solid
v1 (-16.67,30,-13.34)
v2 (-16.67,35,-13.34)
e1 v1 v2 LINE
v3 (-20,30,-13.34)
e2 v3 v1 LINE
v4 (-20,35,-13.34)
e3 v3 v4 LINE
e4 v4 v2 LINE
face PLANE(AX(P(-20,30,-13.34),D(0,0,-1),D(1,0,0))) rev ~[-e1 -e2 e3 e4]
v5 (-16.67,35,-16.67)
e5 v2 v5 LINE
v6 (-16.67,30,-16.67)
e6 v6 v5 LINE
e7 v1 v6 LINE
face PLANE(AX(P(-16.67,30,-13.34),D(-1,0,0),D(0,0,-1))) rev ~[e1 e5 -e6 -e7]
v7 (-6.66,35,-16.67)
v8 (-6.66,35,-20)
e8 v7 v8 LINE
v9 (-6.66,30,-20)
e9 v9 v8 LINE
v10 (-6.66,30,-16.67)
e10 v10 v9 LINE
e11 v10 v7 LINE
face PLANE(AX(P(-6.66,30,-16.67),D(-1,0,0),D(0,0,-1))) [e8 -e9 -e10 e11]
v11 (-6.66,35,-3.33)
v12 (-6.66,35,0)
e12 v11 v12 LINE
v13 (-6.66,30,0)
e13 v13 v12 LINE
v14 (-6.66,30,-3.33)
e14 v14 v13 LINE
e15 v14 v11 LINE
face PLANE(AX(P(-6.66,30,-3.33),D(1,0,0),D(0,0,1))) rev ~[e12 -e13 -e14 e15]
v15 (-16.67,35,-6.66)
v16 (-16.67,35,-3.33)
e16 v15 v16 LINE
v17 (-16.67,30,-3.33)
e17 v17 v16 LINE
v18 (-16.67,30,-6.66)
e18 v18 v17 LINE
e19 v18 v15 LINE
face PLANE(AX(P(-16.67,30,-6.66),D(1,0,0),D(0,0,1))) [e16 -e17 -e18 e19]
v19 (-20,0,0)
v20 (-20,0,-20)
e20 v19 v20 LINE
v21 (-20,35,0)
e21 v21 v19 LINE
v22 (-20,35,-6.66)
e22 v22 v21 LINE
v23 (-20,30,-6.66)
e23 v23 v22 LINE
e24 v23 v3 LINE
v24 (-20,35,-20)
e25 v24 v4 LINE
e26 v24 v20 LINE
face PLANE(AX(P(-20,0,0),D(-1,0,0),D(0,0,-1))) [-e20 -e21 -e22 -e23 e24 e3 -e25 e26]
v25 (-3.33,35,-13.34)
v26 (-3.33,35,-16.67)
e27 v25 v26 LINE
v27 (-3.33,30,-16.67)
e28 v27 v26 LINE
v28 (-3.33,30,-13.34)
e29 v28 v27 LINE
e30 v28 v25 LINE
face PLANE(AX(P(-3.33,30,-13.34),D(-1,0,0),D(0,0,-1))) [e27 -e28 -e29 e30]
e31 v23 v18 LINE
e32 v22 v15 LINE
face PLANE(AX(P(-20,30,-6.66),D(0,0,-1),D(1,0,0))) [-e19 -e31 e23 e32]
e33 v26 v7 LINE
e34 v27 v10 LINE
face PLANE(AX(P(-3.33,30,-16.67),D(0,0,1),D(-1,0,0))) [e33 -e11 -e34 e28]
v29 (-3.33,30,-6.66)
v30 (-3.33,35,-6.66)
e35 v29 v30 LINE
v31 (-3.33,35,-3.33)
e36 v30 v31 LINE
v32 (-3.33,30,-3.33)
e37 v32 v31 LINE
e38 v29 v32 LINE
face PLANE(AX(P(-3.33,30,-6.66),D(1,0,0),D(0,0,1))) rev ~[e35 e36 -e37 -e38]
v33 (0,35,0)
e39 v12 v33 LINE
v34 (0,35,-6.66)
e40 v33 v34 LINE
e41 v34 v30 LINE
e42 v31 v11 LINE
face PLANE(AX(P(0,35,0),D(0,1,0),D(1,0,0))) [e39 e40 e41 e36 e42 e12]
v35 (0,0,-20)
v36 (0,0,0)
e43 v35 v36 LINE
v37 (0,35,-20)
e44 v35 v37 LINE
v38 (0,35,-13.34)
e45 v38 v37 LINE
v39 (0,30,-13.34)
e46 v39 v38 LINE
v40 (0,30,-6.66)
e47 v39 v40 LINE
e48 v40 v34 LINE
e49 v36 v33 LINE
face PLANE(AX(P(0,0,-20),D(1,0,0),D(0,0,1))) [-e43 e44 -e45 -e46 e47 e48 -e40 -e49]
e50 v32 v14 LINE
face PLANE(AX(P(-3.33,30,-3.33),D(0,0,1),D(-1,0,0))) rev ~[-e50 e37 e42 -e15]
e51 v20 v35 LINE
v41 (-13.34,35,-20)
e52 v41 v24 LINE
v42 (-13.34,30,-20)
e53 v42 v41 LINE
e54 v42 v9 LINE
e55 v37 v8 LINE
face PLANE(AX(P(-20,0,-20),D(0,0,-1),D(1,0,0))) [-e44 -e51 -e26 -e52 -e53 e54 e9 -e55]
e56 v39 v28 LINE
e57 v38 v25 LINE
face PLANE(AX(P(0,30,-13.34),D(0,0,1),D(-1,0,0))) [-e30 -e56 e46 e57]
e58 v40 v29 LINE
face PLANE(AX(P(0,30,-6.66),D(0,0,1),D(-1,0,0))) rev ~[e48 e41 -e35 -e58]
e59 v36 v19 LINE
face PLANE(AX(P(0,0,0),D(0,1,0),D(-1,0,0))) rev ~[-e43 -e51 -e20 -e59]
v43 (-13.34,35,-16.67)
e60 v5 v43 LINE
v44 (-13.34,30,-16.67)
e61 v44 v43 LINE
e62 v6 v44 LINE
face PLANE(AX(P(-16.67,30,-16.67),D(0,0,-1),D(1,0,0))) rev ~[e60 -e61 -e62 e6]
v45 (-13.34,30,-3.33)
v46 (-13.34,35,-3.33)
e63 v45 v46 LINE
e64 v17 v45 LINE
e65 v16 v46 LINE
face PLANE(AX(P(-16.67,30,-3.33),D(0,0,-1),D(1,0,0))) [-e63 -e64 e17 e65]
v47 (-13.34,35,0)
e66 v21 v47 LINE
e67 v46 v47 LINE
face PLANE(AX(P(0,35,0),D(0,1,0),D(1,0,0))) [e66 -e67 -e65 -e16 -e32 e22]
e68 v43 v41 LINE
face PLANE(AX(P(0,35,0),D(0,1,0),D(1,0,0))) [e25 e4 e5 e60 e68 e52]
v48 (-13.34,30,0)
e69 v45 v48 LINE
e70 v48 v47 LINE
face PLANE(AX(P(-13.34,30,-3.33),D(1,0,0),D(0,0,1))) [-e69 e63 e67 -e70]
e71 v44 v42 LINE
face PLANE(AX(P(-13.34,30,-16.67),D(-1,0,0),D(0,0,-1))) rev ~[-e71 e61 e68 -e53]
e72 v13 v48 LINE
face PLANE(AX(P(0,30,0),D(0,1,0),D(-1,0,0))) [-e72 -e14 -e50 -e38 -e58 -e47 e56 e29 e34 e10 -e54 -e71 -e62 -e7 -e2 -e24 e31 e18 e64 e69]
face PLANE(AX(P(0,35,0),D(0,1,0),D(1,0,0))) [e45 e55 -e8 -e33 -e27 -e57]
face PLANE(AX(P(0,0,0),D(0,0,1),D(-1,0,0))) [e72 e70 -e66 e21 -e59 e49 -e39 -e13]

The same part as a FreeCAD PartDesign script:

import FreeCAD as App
import Part
import Sketcher
from FreeCAD import Vector
Q = App.Units.Quantity


def add_polygon(sketch, points):
    """Adds a closed chain of lines whose ends are joined by coincident constraints."""
    first, n = sketch.GeometryCount, len(points)
    for a, b in zip(points, points[1:] + points[:1]):
        sketch.addGeometry(Part.LineSegment(App.Vector(*a, 0), App.Vector(*b, 0)), False)
    for i in range(n):
        sketch.addConstraint(Sketcher.Constraint("Coincident", first + i, 2, first + (i + 1) % n, 1))

doc = App.newDocument("Part")
body = doc.addObject("PartDesign::Body", "Body")

sketch1 = body.newObject("Sketcher::SketchObject", "Sketch")
sketch1.AttachmentSupport = (doc.getObject("XZ_Plane"), [""])
sketch1.MapMode = "FlatFace"
add_polygon(sketch1, [(-20, 0), (0, 0), (0, -20), (-20, -20)])
sketch1.addConstraint([
    Sketcher.Constraint("Horizontal", 0),
    Sketcher.Constraint("Vertical", 1),
    Sketcher.Constraint("Horizontal", 2),
    Sketcher.Constraint("Vertical", 3),
    Sketcher.Constraint("Coincident", 0, 2, -1, 1),
    Sketcher.Constraint("Equal", 2, 1),
    Sketcher.Constraint("DistanceX", 0, 1, 0, 2, Q("20 mm")),
])
pad1 = body.newObject("PartDesign::Pad", "Pad")
pad1.Profile = sketch1
pad1.Length = 30
pad1.Reversed = True

sketch2 = body.newObject("Sketcher::SketchObject", "Sketch001")
sketch2.AttachmentSupport = (doc.getObject("XZ_Plane"), [""])
sketch2.MapMode = "FlatFace"
sketch2.AttachmentOffset = App.Placement(Vector(0, 0, -30), App.Rotation())
add_polygon(sketch2, [(0, -13.3), (0, -20), (-6.7, -20), (-6.7, -16.7), (-3.3, -16.7), (-3.3, -13.3)])
add_polygon(sketch2, [(-13.3, -16.7), (-13.3, -20), (-20, -20), (-20, -13.3), (-16.7, -13.3), (-16.7, -16.7)])
add_polygon(sketch2, [(0, 0), (0, -6.7), (-3.3, -6.7), (-3.3, -3.3), (-6.7, -3.3), (-6.7, 0)])
add_polygon(sketch2, [(-20, 0), (-13.3, 0), (-13.3, -3.3), (-16.7, -3.3), (-16.7, -6.7), (-20, -6.7)])
sketch2.addConstraint([
    Sketcher.Constraint("Vertical", 0),
    Sketcher.Constraint("Horizontal", 1),
    Sketcher.Constraint("Vertical", 2),
    Sketcher.Constraint("Horizontal", 3),
    Sketcher.Constraint("Vertical", 4),
    Sketcher.Constraint("Horizontal", 5),
    Sketcher.Constraint("Vertical", 6),
    Sketcher.Constraint("Horizontal", 7),
    Sketcher.Constraint("Vertical", 8),
    Sketcher.Constraint("Horizontal", 9),
    Sketcher.Constraint("Vertical", 10),
    Sketcher.Constraint("Horizontal", 11),
    Sketcher.Constraint("Vertical", 12),
    Sketcher.Constraint("Horizontal", 13),
    Sketcher.Constraint("Vertical", 14),
    Sketcher.Constraint("Horizontal", 15),
    Sketcher.Constraint("Vertical", 16),
    Sketcher.Constraint("Horizontal", 17),
    Sketcher.Constraint("Horizontal", 18),
    Sketcher.Constraint("Vertical", 19),
    Sketcher.Constraint("Horizontal", 20),
    Sketcher.Constraint("Vertical", 21),
    Sketcher.Constraint("Horizontal", 22),
    Sketcher.Constraint("Vertical", 23),
    Sketcher.Constraint("Coincident", 17, 2, -1, 1),
    Sketcher.Constraint("PointOnObject", 0, 2, -2),
    Sketcher.Constraint("PointOnObject", 18, 2, -1),
    Sketcher.Constraint("Horizontal", 1, 2, 6, 2),
    Sketcher.Constraint("Horizontal", 5, 2, 8, 2),
    Sketcher.Constraint("Horizontal", 3, 2, 10, 2),
    Sketcher.Constraint("Horizontal", 15, 2, 19, 2),
    Sketcher.Constraint("Horizontal", 13, 2, 21, 2),
    Sketcher.Constraint("Vertical", 4, 2, 13, 2),
    Sketcher.Constraint("Vertical", 2, 2, 15, 2),
    Sketcher.Constraint("Vertical", 11, 2, 18, 2),
    Sketcher.Constraint("Vertical", 10, 2, 20, 2),
    Sketcher.Constraint("Vertical", 8, 2, 22, 2),
    Sketcher.Constraint("Equal", 3, 5),
    Sketcher.Constraint("Equal", 1, 7),
    Sketcher.Constraint("Equal", 5, 9),
    Sketcher.Constraint("Equal", 18, 0),
    Sketcher.Constraint("Equal", 22, 2),
    Sketcher.Constraint("Equal", 8, 12),
    Sketcher.Constraint("Equal", 10, 14),
    Sketcher.Constraint("DistanceX", 1, 2, 1, 1, Q("6.66 mm")),
    Sketcher.Constraint("DistanceY", 0, 2, -1, 1, Q("20 mm")),
    Sketcher.Constraint("DistanceX", 7, 2, -1, 1, Q("20 mm")),
])
pad2 = body.newObject("PartDesign::Pad", "Pad001")
pad2.Profile = sketch2
pad2.Length = 5
pad2.Reversed = True

doc.recompute()
